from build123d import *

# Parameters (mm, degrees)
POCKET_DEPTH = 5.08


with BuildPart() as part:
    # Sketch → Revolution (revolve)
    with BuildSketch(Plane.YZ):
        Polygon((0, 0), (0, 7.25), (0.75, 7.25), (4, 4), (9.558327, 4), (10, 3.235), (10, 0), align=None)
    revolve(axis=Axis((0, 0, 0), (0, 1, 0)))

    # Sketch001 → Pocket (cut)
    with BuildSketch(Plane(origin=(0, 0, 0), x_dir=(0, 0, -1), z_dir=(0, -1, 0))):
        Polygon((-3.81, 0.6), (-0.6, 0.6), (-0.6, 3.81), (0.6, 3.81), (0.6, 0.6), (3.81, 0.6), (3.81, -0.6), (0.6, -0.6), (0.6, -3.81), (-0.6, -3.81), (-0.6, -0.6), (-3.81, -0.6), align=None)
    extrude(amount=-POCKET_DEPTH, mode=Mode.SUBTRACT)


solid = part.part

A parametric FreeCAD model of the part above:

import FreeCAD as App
import Part
import Sketcher
from FreeCAD import Vector
Q = App.Units.Quantity

doc = App.newDocument("Part")
body = doc.addObject("PartDesign::Body", "Body")

# Sketch on YZ plane
sketch1 = body.newObject("Sketcher::SketchObject", "Sketch")
sketch1.AttachmentSupport = (doc.getObject("YZ_Plane"), [""])
sketch1.MapMode = "FlatFace"
sketch1.addGeometry([
    Part.LineSegment(Vector(0, 7.2, 0), Vector(0, 0, 0)),  # 0
    Part.LineSegment(Vector(0, 0, 0), Vector(10, 0, 0)),  # 1
    Part.LineSegment(Vector(10, 0, 0), Vector(10, 3.2, 0)),  # 2
    Part.LineSegment(Vector(10, 3.2, 0), Vector(9.6, 4, 0)),  # 3
    Part.LineSegment(Vector(9.6, 4, 0), Vector(4, 4, 0)),  # 4
    Part.LineSegment(Vector(4, 4, 0), Vector(0.8, 7.2, 0)),  # 5
    Part.LineSegment(Vector(0.8, 7.2, 0), Vector(0, 7.2, 0)),  # 6
], False)
sketch1.addConstraint([
    Sketcher.Constraint("Coincident", 0, 2, 1, 1),
    Sketcher.Constraint("Coincident", 1, 2, 2, 1),
    Sketcher.Constraint("Coincident", 2, 2, 3, 1),
    Sketcher.Constraint("Coincident", 3, 2, 4, 1),
    Sketcher.Constraint("Coincident", 4, 2, 5, 1),
    Sketcher.Constraint("Coincident", 5, 2, 6, 1),
    Sketcher.Constraint("Coincident", 6, 2, 0, 1),
    Sketcher.Constraint("Vertical", 0),
    Sketcher.Constraint("Horizontal", 1),
    Sketcher.Constraint("Vertical", 2),
    Sketcher.Constraint("Horizontal", 4),
    Sketcher.Constraint("Horizontal", 6),
    Sketcher.Constraint("Coincident", 0, 2, -1, 1),
    Sketcher.Constraint("DistanceX", 1, 1, 1, 2, Q("10 mm")),
    Sketcher.Constraint("Angle", 3, Q("120.000002 deg")),
    Sketcher.Constraint("Angle", 5, Q("135 deg")),
    Sketcher.Constraint("DistanceY", -1, 1, 3, 2, Q("4 mm")),
    Sketcher.Constraint("DistanceX", -1, 1, 4, 2, Q("4 mm")),
    Sketcher.Constraint("DistanceX", 6, 2, 6, 1, Q("0.75 mm")),
    Sketcher.Constraint("DistanceY", 2, 1, 2, 2, Q("3.235 mm")),
])
revolution = body.newObject("PartDesign::Revolution", "Revolution")
revolution.Profile = sketch1
revolution.ReferenceAxis = (sketch1, ["H_Axis"])
revolution.Angle = 360

# Sketch on XZ plane
sketch2 = body.newObject("Sketcher::SketchObject", "Sketch001")
sketch2.AttachmentSupport = (doc.getObject("XZ_Plane"), [""])
sketch2.MapMode = "FlatFace"
sketch2.addGeometry([
    Part.LineSegment(Vector(0.6, 0.6, 0), Vector(0.6, 3.8, 0)),  # 0
    Part.LineSegment(Vector(0.6, 3.8, 0), Vector(-0.6, 3.8, 0)),  # 1
    Part.LineSegment(Vector(-0.6, 3.8, 0), Vector(-0.6, 0.6, 0)),  # 2
    Part.LineSegment(Vector(-0.6, 0.6, 0), Vector(-3.8, 0.6, 0)),  # 3
    Part.LineSegment(Vector(-3.8, 0.6, 0), Vector(-3.8, -0.6, 0)),  # 4
    Part.LineSegment(Vector(-3.8, -0.6, 0), Vector(-0.6, -0.6, 0)),  # 5
    Part.LineSegment(Vector(-0.6, -0.6, 0), Vector(-0.6, -3.8, 0)),  # 6
    Part.LineSegment(Vector(-0.6, -3.8, 0), Vector(0.6, -3.8, 0)),  # 7
    Part.LineSegment(Vector(0.6, -3.8, 0), Vector(0.6, -0.6, 0)),  # 8
    Part.LineSegment(Vector(0.6, -0.6, 0), Vector(3.8, -0.6, 0)),  # 9
    Part.LineSegment(Vector(3.8, -0.6, 0), Vector(3.8, 0.6, 0)),  # 10
    Part.LineSegment(Vector(3.8, 0.6, 0), Vector(0.6, 0.6, 0)),  # 11
], False)
sketch2.addConstraint([
    Sketcher.Constraint("Coincident", 0, 2, 1, 1),
    Sketcher.Constraint("Coincident", 1, 2, 2, 1),
    Sketcher.Constraint("Coincident", 2, 2, 3, 1),
    Sketcher.Constraint("Coincident", 3, 2, 4, 1),
    Sketcher.Constraint("Coincident", 4, 2, 5, 1),
    Sketcher.Constraint("Coincident", 5, 2, 6, 1),
    Sketcher.Constraint("Coincident", 6, 2, 7, 1),
    Sketcher.Constraint("Coincident", 7, 2, 8, 1),
    Sketcher.Constraint("Coincident", 8, 2, 9, 1),
    Sketcher.Constraint("Coincident", 9, 2, 10, 1),
    Sketcher.Constraint("Coincident", 10, 2, 11, 1),
    Sketcher.Constraint("Coincident", 11, 2, 0, 1),
    Sketcher.Constraint("Vertical", 0),
    Sketcher.Constraint("Horizontal", 1),
    Sketcher.Constraint("Vertical", 2),
    Sketcher.Constraint("Horizontal", 3),
    Sketcher.Constraint("Vertical", 4),
    Sketcher.Constraint("Horizontal", 5),
    Sketcher.Constraint("Vertical", 6),
    Sketcher.Constraint("Horizontal", 7),
    Sketcher.Constraint("Vertical", 8),
    Sketcher.Constraint("Horizontal", 9),
    Sketcher.Constraint("Vertical", 10),
    Sketcher.Constraint("Horizontal", 11),
    Sketcher.Constraint("Symmetric", 0, 2, 6, 2, -1, 1),
    Sketcher.Constraint("Symmetric", 2, 2, 8, 2, -1, 1),
    Sketcher.Constraint("Symmetric", 4, 2, 10, 2, -1, 1),
    Sketcher.Constraint("Symmetric", 5, 2, 8, 2, -2),
    Sketcher.Constraint("Equal", 11, 0),
    Sketcher.Constraint("Equal", 7, 4),
    Sketcher.Constraint("DistanceX", 1, 2, 1, 1, Q("1.2 mm")),
    Sketcher.Constraint("DistanceX", 3, 2, 3, 1, Q("3.21 mm")),
])
pocket1 = body.newObject("PartDesign::Pocket", "Pocket")
pocket1.Profile = sketch2
pocket1.Length = 5.08

doc.recompute()
